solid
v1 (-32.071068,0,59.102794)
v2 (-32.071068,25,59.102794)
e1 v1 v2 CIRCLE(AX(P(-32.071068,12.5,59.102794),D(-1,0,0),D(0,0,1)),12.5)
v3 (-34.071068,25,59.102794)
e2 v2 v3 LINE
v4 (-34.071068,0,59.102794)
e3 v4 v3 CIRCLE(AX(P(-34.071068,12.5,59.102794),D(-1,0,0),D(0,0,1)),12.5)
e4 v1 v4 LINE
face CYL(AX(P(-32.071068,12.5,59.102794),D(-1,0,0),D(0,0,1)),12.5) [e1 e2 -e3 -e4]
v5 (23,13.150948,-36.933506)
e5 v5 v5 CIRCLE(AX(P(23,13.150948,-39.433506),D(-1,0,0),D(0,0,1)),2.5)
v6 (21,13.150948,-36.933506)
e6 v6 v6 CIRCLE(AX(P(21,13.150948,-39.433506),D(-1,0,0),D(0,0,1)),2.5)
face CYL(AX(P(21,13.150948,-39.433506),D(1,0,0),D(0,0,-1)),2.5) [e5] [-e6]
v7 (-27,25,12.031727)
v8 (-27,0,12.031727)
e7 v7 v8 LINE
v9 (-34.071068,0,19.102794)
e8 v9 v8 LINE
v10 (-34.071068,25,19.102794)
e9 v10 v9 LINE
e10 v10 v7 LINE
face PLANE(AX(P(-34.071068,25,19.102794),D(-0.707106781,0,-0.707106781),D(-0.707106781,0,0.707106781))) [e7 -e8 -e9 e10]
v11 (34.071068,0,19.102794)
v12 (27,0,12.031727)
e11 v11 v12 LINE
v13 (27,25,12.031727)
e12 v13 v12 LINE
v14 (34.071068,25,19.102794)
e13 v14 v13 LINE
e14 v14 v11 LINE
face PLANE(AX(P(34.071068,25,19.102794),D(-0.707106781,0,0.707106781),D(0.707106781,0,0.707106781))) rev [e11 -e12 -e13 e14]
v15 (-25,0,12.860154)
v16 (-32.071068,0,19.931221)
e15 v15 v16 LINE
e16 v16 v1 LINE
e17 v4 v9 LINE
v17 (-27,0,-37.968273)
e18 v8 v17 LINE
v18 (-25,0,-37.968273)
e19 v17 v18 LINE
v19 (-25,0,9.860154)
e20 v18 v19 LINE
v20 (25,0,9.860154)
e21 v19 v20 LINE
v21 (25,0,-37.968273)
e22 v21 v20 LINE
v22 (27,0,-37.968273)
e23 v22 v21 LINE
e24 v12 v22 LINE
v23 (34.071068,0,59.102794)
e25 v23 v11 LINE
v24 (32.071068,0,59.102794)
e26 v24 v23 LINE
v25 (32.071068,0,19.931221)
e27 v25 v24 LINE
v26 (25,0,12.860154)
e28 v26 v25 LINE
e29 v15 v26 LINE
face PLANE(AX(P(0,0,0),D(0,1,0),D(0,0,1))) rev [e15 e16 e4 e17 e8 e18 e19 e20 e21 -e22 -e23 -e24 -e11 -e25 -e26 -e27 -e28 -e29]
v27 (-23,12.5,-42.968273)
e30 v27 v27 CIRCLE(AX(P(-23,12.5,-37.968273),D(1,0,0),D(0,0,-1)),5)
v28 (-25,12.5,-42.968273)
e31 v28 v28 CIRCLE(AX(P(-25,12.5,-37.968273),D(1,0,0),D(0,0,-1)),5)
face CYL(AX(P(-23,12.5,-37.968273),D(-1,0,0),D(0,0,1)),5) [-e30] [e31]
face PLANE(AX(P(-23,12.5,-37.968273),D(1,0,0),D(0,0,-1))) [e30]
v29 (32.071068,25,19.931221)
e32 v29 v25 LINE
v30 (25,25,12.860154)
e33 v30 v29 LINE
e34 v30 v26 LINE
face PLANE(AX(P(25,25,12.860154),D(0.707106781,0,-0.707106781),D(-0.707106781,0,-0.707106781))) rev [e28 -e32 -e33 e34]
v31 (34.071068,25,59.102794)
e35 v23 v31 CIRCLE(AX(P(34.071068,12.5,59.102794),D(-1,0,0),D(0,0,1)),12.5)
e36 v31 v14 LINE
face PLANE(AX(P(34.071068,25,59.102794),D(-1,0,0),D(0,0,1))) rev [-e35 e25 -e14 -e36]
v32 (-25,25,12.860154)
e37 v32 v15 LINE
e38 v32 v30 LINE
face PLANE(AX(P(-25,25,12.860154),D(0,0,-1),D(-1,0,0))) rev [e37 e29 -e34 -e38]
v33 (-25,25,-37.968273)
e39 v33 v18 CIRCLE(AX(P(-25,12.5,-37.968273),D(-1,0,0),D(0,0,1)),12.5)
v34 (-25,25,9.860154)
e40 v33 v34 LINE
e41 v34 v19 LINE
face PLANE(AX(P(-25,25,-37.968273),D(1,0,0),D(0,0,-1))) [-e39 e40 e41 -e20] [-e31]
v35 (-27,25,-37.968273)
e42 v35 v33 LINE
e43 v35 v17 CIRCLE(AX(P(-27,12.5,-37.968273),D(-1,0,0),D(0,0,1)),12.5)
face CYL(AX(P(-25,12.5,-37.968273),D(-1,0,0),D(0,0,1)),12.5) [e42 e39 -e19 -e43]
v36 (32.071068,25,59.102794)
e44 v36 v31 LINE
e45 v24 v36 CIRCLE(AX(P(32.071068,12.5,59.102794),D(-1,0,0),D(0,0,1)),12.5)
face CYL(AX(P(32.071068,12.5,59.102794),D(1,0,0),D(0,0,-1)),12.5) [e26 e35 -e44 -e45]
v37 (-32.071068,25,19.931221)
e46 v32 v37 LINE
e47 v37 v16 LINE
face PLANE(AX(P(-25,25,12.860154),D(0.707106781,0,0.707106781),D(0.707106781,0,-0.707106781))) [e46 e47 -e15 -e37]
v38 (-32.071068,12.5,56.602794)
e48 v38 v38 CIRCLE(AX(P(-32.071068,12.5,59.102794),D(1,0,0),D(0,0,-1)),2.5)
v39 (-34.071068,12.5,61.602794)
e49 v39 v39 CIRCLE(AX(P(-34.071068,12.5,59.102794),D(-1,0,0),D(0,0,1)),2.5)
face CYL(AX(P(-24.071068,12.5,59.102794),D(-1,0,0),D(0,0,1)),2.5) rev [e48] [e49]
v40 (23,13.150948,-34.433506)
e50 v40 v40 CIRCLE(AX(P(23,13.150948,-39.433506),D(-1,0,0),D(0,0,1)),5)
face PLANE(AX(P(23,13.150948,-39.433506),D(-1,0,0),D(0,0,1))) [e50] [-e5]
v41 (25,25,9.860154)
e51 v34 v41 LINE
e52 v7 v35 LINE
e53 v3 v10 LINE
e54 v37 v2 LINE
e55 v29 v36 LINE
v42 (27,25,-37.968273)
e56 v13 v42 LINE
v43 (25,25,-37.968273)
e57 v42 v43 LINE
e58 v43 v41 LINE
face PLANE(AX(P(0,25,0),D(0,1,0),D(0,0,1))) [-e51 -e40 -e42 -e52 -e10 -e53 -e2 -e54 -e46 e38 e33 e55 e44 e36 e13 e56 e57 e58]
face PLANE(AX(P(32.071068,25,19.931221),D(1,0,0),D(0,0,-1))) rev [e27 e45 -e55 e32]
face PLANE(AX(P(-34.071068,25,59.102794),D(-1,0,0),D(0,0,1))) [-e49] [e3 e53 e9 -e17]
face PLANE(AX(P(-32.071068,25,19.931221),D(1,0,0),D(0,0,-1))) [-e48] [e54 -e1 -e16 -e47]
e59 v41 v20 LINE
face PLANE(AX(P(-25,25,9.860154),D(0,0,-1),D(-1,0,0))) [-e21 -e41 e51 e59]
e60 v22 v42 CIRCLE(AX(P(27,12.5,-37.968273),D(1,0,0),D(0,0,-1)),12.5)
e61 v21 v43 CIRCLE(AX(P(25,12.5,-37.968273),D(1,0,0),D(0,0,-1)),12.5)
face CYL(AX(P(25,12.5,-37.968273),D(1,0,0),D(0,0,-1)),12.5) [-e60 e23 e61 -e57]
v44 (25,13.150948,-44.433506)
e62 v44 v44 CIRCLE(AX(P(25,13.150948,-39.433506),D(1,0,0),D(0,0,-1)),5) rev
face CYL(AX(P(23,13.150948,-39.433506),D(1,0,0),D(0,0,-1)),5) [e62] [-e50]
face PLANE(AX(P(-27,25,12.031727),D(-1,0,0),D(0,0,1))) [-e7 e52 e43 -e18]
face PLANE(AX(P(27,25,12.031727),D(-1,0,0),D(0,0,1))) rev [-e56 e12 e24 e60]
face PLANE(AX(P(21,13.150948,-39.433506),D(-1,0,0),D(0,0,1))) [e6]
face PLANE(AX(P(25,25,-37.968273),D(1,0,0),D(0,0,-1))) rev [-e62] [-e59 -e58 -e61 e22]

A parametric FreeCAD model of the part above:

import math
import FreeCAD as App
import Part
import Sketcher
from FreeCAD import Vector

doc = App.newDocument("Part")
body = doc.addObject("PartDesign::Body", "Body")

sketch1 = body.newObject("Sketcher::SketchObject", "Sketch")
sketch1.AttachmentSupport = (doc.getObject("XZ_Plane"), [""])
sketch1.MapMode = "FlatFace"
sketch1.addGeometry(Part.LineSegment(Vector(-34.1, 19.1, 0), Vector(-34.1, 59.1, 0)), False)
sketch1.addGeometry(Part.LineSegment(Vector(-34.1, 59.1, 0), Vector(-32.1, 59.1, 0)), False)
sketch1.addGeometry(Part.LineSegment(Vector(-32.1, 59.1, 0), Vector(-32.1, 19.9, 0)), False)
sketch1.addGeometry(Part.LineSegment(Vector(-32.1, 19.9, 0), Vector(-25, 12.9, 0)), False)
sketch1.addGeometry(Part.LineSegment(Vector(-25, 12.9, 0), Vector(25, 12.9, 0)), False)
sketch1.addGeometry(Part.LineSegment(Vector(25, 12.9, 0), Vector(32.1, 19.9, 0)), False)
sketch1.addGeometry(Part.LineSegment(Vector(32.1, 19.9, 0), Vector(32.1, 59.1, 0)), False)
sketch1.addGeometry(Part.LineSegment(Vector(32.1, 59.1, 0), Vector(34.1, 59.1, 0)), False)
sketch1.addGeometry(Part.LineSegment(Vector(34.1, 59.1, 0), Vector(34.1, 19.1, 0)), False)
sketch1.addGeometry(Part.LineSegment(Vector(34.1, 19.1, 0), Vector(27, 12, 0)), False)
sketch1.addGeometry(Part.LineSegment(Vector(27, 12, 0), Vector(27, -38, 0)), False)
sketch1.addGeometry(Part.LineSegment(Vector(27, -38, 0), Vector(25, -38, 0)), False)
sketch1.addGeometry(Part.LineSegment(Vector(25, -38, 0), Vector(25, 9.9, 0)), False)
sketch1.addGeometry(Part.LineSegment(Vector(25, 9.9, 0), Vector(-25, 9.9, 0)), False)
sketch1.addGeometry(Part.LineSegment(Vector(-25, 9.9, 0), Vector(-25, -38, 0)), False)
sketch1.addGeometry(Part.LineSegment(Vector(-25, -38, 0), Vector(-27, -38, 0)), False)
sketch1.addGeometry(Part.LineSegment(Vector(-27, -38, 0), Vector(-27, 12, 0)), False)
sketch1.addGeometry(Part.LineSegment(Vector(-27, 12, 0), Vector(-34.1, 19.1, 0)), False)
sketch1.addConstraint(Sketcher.Constraint("Coincident", 0, 2, 1, 1))
sketch1.addConstraint(Sketcher.Constraint("Coincident", 1, 2, 2, 1))
sketch1.addConstraint(Sketcher.Constraint("Coincident", 2, 2, 3, 1))
sketch1.addConstraint(Sketcher.Constraint("Coincident", 3, 2, 4, 1))
sketch1.addConstraint(Sketcher.Constraint("Coincident", 4, 2, 5, 1))
sketch1.addConstraint(Sketcher.Constraint("Coincident", 5, 2, 6, 1))
sketch1.addConstraint(Sketcher.Constraint("Coincident", 6, 2, 7, 1))
sketch1.addConstraint(Sketcher.Constraint("Coincident", 7, 2, 8, 1))
sketch1.addConstraint(Sketcher.Constraint("Coincident", 8, 2, 9, 1))
sketch1.addConstraint(Sketcher.Constraint("Coincident", 9, 2, 10, 1))
sketch1.addConstraint(Sketcher.Constraint("Coincident", 10, 2, 11, 1))
sketch1.addConstraint(Sketcher.Constraint("Coincident", 11, 2, 12, 1))
sketch1.addConstraint(Sketcher.Constraint("Coincident", 12, 2, 13, 1))
sketch1.addConstraint(Sketcher.Constraint("Coincident", 13, 2, 14, 1))
sketch1.addConstraint(Sketcher.Constraint("Coincident", 14, 2, 15, 1))
sketch1.addConstraint(Sketcher.Constraint("Coincident", 15, 2, 16, 1))
sketch1.addConstraint(Sketcher.Constraint("Coincident", 16, 2, 17, 1))
sketch1.addConstraint(Sketcher.Constraint("Coincident", 17, 2, 0, 1))
sketch1.addConstraint(Sketcher.Constraint("Vertical", 0))
sketch1.addConstraint(Sketcher.Constraint("Horizontal", 1))
sketch1.addConstraint(Sketcher.Constraint("Vertical", 2))
sketch1.addConstraint(Sketcher.Constraint("Horizontal", 4))
sketch1.addConstraint(Sketcher.Constraint("Vertical", 6))
sketch1.addConstraint(Sketcher.Constraint("Horizontal", 7))
sketch1.addConstraint(Sketcher.Constraint("Vertical", 8))
sketch1.addConstraint(Sketcher.Constraint("Vertical", 10))
sketch1.addConstraint(Sketcher.Constraint("Horizontal", 11))
sketch1.addConstraint(Sketcher.Constraint("Vertical", 12))
sketch1.addConstraint(Sketcher.Constraint("Horizontal", 13))
sketch1.addConstraint(Sketcher.Constraint("Vertical", 14))
sketch1.addConstraint(Sketcher.Constraint("Horizontal", 15))
sketch1.addConstraint(Sketcher.Constraint("Vertical", 16))
sketch1.addConstraint(Sketcher.Constraint("Symmetric", 2, 2, 5, 2, -2))
sketch1.addConstraint(Sketcher.Constraint("Symmetric", 0, 2, 7, 2, -2))
sketch1.addConstraint(Sketcher.Constraint("Symmetric", 11, 2, 14, 2, -2))
sketch1.addConstraint(Sketcher.Constraint("Symmetric", 9, 2, 16, 2, -2))
sketch1.addConstraint(Sketcher.Constraint("Perpendicular", 3, 5))
sketch1.addConstraint(Sketcher.Constraint("Parallel", 5, 9))
sketch1.addConstraint(Sketcher.Constraint("Perpendicular", 9, 17))
sketch1.addConstraint(Sketcher.Constraint("Horizontal", 8, 2, 17, 2))
sketch1.addConstraint(Sketcher.Constraint("Vertical", 4, 2, 11, 2))
sketch1.addConstraint(Sketcher.Constraint("Equal", 7, 11))
sketch1.addConstraint(Sketcher.Constraint("Equal", 13, 10))
sketch1.addConstraint(Sketcher.Constraint("DistanceX", 1, 1, 1, 2, 2.0))
sketch1.addConstraint(Sketcher.Constraint("DistanceX", 4, 1, 4, 2, 50.0))
sketch1.addConstraint(Sketcher.Constraint("DistanceY", 0, 1, 0, 2, 40.0))
sketch1.addConstraint(Sketcher.Constraint("Distance", 3, 10.0))
sketch1.addConstraint(Sketcher.Constraint("DistanceY", 12, 2, 4, 2, 3.0))
sketch1.addConstraint(Sketcher.Constraint("DistanceY", 2, 2, 2, 1, 39.171573))
sketch1.addConstraint(Sketcher.Constraint("DistanceY", -1, 1, 2, 2, 19.931221))
pad1 = body.newObject("PartDesign::Pad", "Pad")
pad1.Profile = sketch1
pad1.Length = 25
pad1.Reversed = True

sketch2 = body.newObject("Sketcher::SketchObject", "Sketch001")
sketch2.AttachmentSupport = (doc.getObject("YZ_Plane"), [""])
sketch2.MapMode = "FlatFace"
sketch2.AttachmentOffset = App.Placement(Vector(0, 0, 34.071068), App.Rotation())
sketch2.addGeometry(Part.LineSegment(Vector(0, 59, 0), Vector(0, 19, 0)), False)
sketch2.addGeometry(Part.LineSegment(Vector(0, 19, 0), Vector(25, 19, 0)), False)
sketch2.addGeometry(Part.LineSegment(Vector(25, 19, 0), Vector(25, 59, 0)), False)
sketch2.addGeometry(Part.ArcOfCircle(Part.Circle(Vector(12, 59, 0), Vector(0, 0, 1), 12), math.radians(0), math.radians(180)), False)
sketch2.addConstraint(Sketcher.Constraint("Coincident", 0, 2, 1, 1))
sketch2.addConstraint(Sketcher.Constraint("Coincident", 1, 2, 2, 1))
sketch2.addConstraint(Sketcher.Constraint("Tangent", 2, 2, 3, 1))
sketch2.addConstraint(Sketcher.Constraint("Tangent", 3, 2, 0, 1))
sketch2.addConstraint(Sketcher.Constraint("Vertical", 0))
sketch2.addConstraint(Sketcher.Constraint("Horizontal", 1))
sketch2.addConstraint(Sketcher.Constraint("Vertical", 2))
sketch2.addConstraint(Sketcher.Constraint("PointOnObject", 0, 2, -2))
sketch2.addConstraint(Sketcher.Constraint("Radius", 3, 12.5))
sketch2.addConstraint(Sketcher.Constraint("DistanceY", 0, 2, 0, 1, 40.0))
sketch2.addConstraint(Sketcher.Constraint("DistanceY", -1, 1, 3, 3, 59.102794))
pad2 = body.newObject("PartDesign::Pad", "Pad001")
pad2.Profile = sketch2
pad2.Length = 2
pad2.Reversed = True

sketch3 = body.newObject("Sketcher::SketchObject", "Sketch002")
sketch3.AttachmentSupport = (doc.getObject("YZ_Plane"), [""])
sketch3.MapMode = "FlatFace"
sketch3.AttachmentOffset = App.Placement(Vector(0, 0, 27), App.Rotation())
sketch3.addGeometry(Part.LineSegment(Vector(25, -38, 0), Vector(0, -38, 0)), False)
sketch3.addGeometry(Part.ArcOfCircle(Part.Circle(Vector(12, -38, 0), Vector(0, 0, 1), 12), math.radians(180), math.radians(360)), False)
sketch3.addConstraint(Sketcher.Constraint("Coincident", 0, 1, 1, 2))
sketch3.addConstraint(Sketcher.Constraint("Coincident", 1, 1, 0, 2))
sketch3.addConstraint(Sketcher.Constraint("Horizontal", 0))
sketch3.addConstraint(Sketcher.Constraint("PointOnObject", 1, 1, -2))
sketch3.addConstraint(Sketcher.Constraint("Horizontal", 1, 3, 0, 1))
sketch3.addConstraint(Sketcher.Constraint("Radius", 1, 12.5))
sketch3.addConstraint(Sketcher.Constraint("DistanceY", 1, 3, -1, 1, 37.968273))
pad3 = body.newObject("PartDesign::Pad", "Pad002")
pad3.Profile = sketch3
pad3.Length = 2
pad3.Reversed = True

sketch4 = body.newObject("Sketcher::SketchObject", "Sketch003")
sketch4.AttachmentSupport = (doc.getObject("YZ_Plane"), [""])
sketch4.MapMode = "FlatFace"
sketch4.AttachmentOffset = App.Placement(Vector(0, 0, -32.071068), App.Rotation())
sketch4.addGeometry(Part.LineSegment(Vector(25, 59, 0), Vector(0, 59, 0)), False)
sketch4.addGeometry(Part.ArcOfCircle(Part.Circle(Vector(12, 59, 0), Vector(0, 0, 1), 12), math.radians(0), math.radians(180)), False)
sketch4.addConstraint(Sketcher.Constraint("Coincident", 0, 1, 1, 1))
sketch4.addConstraint(Sketcher.Constraint("Coincident", 1, 2, 0, 2))
sketch4.addConstraint(Sketcher.Constraint("Horizontal", 0))
sketch4.addConstraint(Sketcher.Constraint("PointOnObject", 1, 2, -2))
sketch4.addConstraint(Sketcher.Constraint("Horizontal", 1, 3, 0, 1))
sketch4.addConstraint(Sketcher.Constraint("Radius", 1, 12.5))
sketch4.addConstraint(Sketcher.Constraint("DistanceY", -1, 1, 1, 3, 59.102794))
pad4 = body.newObject("PartDesign::Pad", "Pad003")
pad4.Profile = sketch4
pad4.Length = 2
pad4.Reversed = True

sketch5 = body.newObject("Sketcher::SketchObject", "Sketch004")
sketch5.AttachmentSupport = (doc.getObject("YZ_Plane"), [""])
sketch5.MapMode = "FlatFace"
sketch5.AttachmentOffset = App.Placement(Vector(0, 0, -25), App.Rotation())
sketch5.addGeometry(Part.LineSegment(Vector(0, -38, 0), Vector(25, -38, 0)), False)
sketch5.addGeometry(Part.ArcOfCircle(Part.Circle(Vector(12, -38, 0), Vector(0, 0, 1), 12), math.radians(180), math.radians(360)), False)
sketch5.addConstraint(Sketcher.Constraint("Coincident", 0, 1, 1, 1))
sketch5.addConstraint(Sketcher.Constraint("Coincident", 1, 2, 0, 2))
sketch5.addConstraint(Sketcher.Constraint("Horizontal", 0))
sketch5.addConstraint(Sketcher.Constraint("PointOnObject", 0, 1, -2))
sketch5.addConstraint(Sketcher.Constraint("Horizontal", 1, 3, 0, 1))
sketch5.addConstraint(Sketcher.Constraint("Radius", 1, 12.5))
sketch5.addConstraint(Sketcher.Constraint("DistanceY", 1, 3, -1, 1, 37.968273))
pad5 = body.newObject("PartDesign::Pad", "Pad004")
pad5.Profile = sketch5
pad5.Length = 2
pad5.Reversed = True

sketch6 = body.newObject("Sketcher::SketchObject", "Sketch005")
sketch6.AttachmentSupport = (doc.getObject("YZ_Plane"), [""])
sketch6.MapMode = "FlatFace"
sketch6.AttachmentOffset = App.Placement(Vector(0, 0, -34.071068), App.Rotation())
sketch6.addGeometry(Part.Circle(Vector(12.5, 59.1, 0), Vector(0, 0, 1), 2.5), False)
sketch6.addConstraint(Sketcher.Constraint("Diameter", 0, 5.0))
sketch6.addConstraint(Sketcher.Constraint("DistanceX", -1, 1, 0, 3, 12.5))
sketch6.addConstraint(Sketcher.Constraint("DistanceY", -1, 1, 0, 3, 59.102794))
pocket1 = body.newObject("PartDesign::Pocket", "Pocket")
pocket1.Profile = sketch6
pocket1.Length = 10
pocket1.Reversed = True

sketch7 = body.newObject("Sketcher::SketchObject", "Sketch006")
sketch7.AttachmentSupport = (doc.getObject("YZ_Plane"), [""])
sketch7.MapMode = "FlatFace"
sketch7.AttachmentOffset = App.Placement(Vector(0, 0, -25), App.Rotation())
sketch7.addGeometry(Part.Circle(Vector(12, -38, 0), Vector(0, 0, 1), 5), False)
sketch7.addConstraint(Sketcher.Constraint("Diameter", 0, 10.0))
sketch7.addConstraint(Sketcher.Constraint("DistanceX", -1, 1, 0, 3, 12.5))
sketch7.addConstraint(Sketcher.Constraint("DistanceY", 0, 3, -1, 1, 37.968273))
pad6 = body.newObject("PartDesign::Pad", "Pad005")
pad6.Profile = sketch7
pad6.Length = 2

sketch8 = body.newObject("Sketcher::SketchObject", "Sketch007")
sketch8.AttachmentSupport = (doc.getObject("YZ_Plane"), [""])
sketch8.MapMode = "FlatFace"
sketch8.AttachmentOffset = App.Placement(Vector(0, 0, 25), App.Rotation())
sketch8.addGeometry(Part.Circle(Vector(13, -39, 0), Vector(0, 0, 1), 5), False)
sketch8.addConstraint(Sketcher.Constraint("Diameter", 0, 10.0))
sketch8.addConstraint(Sketcher.Constraint("DistanceX", -1, 1, 0, 3, 13.150948))
sketch8.addConstraint(Sketcher.Constraint("DistanceY", 0, 3, -1, 1, 39.433506))
pad7 = body.newObject("PartDesign::Pad", "Pad006")
pad7.Profile = sketch8
pad7.Length = 2
pad7.Reversed = True

sketch9 = body.newObject("Sketcher::SketchObject", "Sketch008")
sketch9.AttachmentSupport = (doc.getObject("YZ_Plane"), [""])
sketch9.MapMode = "FlatFace"
sketch9.AttachmentOffset = App.Placement(Vector(0, 0, 23), App.Rotation())
sketch9.addGeometry(Part.Circle(Vector(13.2, -39.4, 0), Vector(0, 0, 1), 2.5), False)
sketch9.addConstraint(Sketcher.Constraint("Diameter", 0, 5.0))
sketch9.addConstraint(Sketcher.Constraint("DistanceX", -1, 1, 0, 3, 13.150948))
sketch9.addConstraint(Sketcher.Constraint("DistanceY", 0, 3, -1, 1, 39.433506))
pad8 = body.newObject("PartDesign::Pad", "Pad007")
pad8.Profile = sketch9
pad8.Length = 2
pad8.Reversed = True

doc.recompute()
